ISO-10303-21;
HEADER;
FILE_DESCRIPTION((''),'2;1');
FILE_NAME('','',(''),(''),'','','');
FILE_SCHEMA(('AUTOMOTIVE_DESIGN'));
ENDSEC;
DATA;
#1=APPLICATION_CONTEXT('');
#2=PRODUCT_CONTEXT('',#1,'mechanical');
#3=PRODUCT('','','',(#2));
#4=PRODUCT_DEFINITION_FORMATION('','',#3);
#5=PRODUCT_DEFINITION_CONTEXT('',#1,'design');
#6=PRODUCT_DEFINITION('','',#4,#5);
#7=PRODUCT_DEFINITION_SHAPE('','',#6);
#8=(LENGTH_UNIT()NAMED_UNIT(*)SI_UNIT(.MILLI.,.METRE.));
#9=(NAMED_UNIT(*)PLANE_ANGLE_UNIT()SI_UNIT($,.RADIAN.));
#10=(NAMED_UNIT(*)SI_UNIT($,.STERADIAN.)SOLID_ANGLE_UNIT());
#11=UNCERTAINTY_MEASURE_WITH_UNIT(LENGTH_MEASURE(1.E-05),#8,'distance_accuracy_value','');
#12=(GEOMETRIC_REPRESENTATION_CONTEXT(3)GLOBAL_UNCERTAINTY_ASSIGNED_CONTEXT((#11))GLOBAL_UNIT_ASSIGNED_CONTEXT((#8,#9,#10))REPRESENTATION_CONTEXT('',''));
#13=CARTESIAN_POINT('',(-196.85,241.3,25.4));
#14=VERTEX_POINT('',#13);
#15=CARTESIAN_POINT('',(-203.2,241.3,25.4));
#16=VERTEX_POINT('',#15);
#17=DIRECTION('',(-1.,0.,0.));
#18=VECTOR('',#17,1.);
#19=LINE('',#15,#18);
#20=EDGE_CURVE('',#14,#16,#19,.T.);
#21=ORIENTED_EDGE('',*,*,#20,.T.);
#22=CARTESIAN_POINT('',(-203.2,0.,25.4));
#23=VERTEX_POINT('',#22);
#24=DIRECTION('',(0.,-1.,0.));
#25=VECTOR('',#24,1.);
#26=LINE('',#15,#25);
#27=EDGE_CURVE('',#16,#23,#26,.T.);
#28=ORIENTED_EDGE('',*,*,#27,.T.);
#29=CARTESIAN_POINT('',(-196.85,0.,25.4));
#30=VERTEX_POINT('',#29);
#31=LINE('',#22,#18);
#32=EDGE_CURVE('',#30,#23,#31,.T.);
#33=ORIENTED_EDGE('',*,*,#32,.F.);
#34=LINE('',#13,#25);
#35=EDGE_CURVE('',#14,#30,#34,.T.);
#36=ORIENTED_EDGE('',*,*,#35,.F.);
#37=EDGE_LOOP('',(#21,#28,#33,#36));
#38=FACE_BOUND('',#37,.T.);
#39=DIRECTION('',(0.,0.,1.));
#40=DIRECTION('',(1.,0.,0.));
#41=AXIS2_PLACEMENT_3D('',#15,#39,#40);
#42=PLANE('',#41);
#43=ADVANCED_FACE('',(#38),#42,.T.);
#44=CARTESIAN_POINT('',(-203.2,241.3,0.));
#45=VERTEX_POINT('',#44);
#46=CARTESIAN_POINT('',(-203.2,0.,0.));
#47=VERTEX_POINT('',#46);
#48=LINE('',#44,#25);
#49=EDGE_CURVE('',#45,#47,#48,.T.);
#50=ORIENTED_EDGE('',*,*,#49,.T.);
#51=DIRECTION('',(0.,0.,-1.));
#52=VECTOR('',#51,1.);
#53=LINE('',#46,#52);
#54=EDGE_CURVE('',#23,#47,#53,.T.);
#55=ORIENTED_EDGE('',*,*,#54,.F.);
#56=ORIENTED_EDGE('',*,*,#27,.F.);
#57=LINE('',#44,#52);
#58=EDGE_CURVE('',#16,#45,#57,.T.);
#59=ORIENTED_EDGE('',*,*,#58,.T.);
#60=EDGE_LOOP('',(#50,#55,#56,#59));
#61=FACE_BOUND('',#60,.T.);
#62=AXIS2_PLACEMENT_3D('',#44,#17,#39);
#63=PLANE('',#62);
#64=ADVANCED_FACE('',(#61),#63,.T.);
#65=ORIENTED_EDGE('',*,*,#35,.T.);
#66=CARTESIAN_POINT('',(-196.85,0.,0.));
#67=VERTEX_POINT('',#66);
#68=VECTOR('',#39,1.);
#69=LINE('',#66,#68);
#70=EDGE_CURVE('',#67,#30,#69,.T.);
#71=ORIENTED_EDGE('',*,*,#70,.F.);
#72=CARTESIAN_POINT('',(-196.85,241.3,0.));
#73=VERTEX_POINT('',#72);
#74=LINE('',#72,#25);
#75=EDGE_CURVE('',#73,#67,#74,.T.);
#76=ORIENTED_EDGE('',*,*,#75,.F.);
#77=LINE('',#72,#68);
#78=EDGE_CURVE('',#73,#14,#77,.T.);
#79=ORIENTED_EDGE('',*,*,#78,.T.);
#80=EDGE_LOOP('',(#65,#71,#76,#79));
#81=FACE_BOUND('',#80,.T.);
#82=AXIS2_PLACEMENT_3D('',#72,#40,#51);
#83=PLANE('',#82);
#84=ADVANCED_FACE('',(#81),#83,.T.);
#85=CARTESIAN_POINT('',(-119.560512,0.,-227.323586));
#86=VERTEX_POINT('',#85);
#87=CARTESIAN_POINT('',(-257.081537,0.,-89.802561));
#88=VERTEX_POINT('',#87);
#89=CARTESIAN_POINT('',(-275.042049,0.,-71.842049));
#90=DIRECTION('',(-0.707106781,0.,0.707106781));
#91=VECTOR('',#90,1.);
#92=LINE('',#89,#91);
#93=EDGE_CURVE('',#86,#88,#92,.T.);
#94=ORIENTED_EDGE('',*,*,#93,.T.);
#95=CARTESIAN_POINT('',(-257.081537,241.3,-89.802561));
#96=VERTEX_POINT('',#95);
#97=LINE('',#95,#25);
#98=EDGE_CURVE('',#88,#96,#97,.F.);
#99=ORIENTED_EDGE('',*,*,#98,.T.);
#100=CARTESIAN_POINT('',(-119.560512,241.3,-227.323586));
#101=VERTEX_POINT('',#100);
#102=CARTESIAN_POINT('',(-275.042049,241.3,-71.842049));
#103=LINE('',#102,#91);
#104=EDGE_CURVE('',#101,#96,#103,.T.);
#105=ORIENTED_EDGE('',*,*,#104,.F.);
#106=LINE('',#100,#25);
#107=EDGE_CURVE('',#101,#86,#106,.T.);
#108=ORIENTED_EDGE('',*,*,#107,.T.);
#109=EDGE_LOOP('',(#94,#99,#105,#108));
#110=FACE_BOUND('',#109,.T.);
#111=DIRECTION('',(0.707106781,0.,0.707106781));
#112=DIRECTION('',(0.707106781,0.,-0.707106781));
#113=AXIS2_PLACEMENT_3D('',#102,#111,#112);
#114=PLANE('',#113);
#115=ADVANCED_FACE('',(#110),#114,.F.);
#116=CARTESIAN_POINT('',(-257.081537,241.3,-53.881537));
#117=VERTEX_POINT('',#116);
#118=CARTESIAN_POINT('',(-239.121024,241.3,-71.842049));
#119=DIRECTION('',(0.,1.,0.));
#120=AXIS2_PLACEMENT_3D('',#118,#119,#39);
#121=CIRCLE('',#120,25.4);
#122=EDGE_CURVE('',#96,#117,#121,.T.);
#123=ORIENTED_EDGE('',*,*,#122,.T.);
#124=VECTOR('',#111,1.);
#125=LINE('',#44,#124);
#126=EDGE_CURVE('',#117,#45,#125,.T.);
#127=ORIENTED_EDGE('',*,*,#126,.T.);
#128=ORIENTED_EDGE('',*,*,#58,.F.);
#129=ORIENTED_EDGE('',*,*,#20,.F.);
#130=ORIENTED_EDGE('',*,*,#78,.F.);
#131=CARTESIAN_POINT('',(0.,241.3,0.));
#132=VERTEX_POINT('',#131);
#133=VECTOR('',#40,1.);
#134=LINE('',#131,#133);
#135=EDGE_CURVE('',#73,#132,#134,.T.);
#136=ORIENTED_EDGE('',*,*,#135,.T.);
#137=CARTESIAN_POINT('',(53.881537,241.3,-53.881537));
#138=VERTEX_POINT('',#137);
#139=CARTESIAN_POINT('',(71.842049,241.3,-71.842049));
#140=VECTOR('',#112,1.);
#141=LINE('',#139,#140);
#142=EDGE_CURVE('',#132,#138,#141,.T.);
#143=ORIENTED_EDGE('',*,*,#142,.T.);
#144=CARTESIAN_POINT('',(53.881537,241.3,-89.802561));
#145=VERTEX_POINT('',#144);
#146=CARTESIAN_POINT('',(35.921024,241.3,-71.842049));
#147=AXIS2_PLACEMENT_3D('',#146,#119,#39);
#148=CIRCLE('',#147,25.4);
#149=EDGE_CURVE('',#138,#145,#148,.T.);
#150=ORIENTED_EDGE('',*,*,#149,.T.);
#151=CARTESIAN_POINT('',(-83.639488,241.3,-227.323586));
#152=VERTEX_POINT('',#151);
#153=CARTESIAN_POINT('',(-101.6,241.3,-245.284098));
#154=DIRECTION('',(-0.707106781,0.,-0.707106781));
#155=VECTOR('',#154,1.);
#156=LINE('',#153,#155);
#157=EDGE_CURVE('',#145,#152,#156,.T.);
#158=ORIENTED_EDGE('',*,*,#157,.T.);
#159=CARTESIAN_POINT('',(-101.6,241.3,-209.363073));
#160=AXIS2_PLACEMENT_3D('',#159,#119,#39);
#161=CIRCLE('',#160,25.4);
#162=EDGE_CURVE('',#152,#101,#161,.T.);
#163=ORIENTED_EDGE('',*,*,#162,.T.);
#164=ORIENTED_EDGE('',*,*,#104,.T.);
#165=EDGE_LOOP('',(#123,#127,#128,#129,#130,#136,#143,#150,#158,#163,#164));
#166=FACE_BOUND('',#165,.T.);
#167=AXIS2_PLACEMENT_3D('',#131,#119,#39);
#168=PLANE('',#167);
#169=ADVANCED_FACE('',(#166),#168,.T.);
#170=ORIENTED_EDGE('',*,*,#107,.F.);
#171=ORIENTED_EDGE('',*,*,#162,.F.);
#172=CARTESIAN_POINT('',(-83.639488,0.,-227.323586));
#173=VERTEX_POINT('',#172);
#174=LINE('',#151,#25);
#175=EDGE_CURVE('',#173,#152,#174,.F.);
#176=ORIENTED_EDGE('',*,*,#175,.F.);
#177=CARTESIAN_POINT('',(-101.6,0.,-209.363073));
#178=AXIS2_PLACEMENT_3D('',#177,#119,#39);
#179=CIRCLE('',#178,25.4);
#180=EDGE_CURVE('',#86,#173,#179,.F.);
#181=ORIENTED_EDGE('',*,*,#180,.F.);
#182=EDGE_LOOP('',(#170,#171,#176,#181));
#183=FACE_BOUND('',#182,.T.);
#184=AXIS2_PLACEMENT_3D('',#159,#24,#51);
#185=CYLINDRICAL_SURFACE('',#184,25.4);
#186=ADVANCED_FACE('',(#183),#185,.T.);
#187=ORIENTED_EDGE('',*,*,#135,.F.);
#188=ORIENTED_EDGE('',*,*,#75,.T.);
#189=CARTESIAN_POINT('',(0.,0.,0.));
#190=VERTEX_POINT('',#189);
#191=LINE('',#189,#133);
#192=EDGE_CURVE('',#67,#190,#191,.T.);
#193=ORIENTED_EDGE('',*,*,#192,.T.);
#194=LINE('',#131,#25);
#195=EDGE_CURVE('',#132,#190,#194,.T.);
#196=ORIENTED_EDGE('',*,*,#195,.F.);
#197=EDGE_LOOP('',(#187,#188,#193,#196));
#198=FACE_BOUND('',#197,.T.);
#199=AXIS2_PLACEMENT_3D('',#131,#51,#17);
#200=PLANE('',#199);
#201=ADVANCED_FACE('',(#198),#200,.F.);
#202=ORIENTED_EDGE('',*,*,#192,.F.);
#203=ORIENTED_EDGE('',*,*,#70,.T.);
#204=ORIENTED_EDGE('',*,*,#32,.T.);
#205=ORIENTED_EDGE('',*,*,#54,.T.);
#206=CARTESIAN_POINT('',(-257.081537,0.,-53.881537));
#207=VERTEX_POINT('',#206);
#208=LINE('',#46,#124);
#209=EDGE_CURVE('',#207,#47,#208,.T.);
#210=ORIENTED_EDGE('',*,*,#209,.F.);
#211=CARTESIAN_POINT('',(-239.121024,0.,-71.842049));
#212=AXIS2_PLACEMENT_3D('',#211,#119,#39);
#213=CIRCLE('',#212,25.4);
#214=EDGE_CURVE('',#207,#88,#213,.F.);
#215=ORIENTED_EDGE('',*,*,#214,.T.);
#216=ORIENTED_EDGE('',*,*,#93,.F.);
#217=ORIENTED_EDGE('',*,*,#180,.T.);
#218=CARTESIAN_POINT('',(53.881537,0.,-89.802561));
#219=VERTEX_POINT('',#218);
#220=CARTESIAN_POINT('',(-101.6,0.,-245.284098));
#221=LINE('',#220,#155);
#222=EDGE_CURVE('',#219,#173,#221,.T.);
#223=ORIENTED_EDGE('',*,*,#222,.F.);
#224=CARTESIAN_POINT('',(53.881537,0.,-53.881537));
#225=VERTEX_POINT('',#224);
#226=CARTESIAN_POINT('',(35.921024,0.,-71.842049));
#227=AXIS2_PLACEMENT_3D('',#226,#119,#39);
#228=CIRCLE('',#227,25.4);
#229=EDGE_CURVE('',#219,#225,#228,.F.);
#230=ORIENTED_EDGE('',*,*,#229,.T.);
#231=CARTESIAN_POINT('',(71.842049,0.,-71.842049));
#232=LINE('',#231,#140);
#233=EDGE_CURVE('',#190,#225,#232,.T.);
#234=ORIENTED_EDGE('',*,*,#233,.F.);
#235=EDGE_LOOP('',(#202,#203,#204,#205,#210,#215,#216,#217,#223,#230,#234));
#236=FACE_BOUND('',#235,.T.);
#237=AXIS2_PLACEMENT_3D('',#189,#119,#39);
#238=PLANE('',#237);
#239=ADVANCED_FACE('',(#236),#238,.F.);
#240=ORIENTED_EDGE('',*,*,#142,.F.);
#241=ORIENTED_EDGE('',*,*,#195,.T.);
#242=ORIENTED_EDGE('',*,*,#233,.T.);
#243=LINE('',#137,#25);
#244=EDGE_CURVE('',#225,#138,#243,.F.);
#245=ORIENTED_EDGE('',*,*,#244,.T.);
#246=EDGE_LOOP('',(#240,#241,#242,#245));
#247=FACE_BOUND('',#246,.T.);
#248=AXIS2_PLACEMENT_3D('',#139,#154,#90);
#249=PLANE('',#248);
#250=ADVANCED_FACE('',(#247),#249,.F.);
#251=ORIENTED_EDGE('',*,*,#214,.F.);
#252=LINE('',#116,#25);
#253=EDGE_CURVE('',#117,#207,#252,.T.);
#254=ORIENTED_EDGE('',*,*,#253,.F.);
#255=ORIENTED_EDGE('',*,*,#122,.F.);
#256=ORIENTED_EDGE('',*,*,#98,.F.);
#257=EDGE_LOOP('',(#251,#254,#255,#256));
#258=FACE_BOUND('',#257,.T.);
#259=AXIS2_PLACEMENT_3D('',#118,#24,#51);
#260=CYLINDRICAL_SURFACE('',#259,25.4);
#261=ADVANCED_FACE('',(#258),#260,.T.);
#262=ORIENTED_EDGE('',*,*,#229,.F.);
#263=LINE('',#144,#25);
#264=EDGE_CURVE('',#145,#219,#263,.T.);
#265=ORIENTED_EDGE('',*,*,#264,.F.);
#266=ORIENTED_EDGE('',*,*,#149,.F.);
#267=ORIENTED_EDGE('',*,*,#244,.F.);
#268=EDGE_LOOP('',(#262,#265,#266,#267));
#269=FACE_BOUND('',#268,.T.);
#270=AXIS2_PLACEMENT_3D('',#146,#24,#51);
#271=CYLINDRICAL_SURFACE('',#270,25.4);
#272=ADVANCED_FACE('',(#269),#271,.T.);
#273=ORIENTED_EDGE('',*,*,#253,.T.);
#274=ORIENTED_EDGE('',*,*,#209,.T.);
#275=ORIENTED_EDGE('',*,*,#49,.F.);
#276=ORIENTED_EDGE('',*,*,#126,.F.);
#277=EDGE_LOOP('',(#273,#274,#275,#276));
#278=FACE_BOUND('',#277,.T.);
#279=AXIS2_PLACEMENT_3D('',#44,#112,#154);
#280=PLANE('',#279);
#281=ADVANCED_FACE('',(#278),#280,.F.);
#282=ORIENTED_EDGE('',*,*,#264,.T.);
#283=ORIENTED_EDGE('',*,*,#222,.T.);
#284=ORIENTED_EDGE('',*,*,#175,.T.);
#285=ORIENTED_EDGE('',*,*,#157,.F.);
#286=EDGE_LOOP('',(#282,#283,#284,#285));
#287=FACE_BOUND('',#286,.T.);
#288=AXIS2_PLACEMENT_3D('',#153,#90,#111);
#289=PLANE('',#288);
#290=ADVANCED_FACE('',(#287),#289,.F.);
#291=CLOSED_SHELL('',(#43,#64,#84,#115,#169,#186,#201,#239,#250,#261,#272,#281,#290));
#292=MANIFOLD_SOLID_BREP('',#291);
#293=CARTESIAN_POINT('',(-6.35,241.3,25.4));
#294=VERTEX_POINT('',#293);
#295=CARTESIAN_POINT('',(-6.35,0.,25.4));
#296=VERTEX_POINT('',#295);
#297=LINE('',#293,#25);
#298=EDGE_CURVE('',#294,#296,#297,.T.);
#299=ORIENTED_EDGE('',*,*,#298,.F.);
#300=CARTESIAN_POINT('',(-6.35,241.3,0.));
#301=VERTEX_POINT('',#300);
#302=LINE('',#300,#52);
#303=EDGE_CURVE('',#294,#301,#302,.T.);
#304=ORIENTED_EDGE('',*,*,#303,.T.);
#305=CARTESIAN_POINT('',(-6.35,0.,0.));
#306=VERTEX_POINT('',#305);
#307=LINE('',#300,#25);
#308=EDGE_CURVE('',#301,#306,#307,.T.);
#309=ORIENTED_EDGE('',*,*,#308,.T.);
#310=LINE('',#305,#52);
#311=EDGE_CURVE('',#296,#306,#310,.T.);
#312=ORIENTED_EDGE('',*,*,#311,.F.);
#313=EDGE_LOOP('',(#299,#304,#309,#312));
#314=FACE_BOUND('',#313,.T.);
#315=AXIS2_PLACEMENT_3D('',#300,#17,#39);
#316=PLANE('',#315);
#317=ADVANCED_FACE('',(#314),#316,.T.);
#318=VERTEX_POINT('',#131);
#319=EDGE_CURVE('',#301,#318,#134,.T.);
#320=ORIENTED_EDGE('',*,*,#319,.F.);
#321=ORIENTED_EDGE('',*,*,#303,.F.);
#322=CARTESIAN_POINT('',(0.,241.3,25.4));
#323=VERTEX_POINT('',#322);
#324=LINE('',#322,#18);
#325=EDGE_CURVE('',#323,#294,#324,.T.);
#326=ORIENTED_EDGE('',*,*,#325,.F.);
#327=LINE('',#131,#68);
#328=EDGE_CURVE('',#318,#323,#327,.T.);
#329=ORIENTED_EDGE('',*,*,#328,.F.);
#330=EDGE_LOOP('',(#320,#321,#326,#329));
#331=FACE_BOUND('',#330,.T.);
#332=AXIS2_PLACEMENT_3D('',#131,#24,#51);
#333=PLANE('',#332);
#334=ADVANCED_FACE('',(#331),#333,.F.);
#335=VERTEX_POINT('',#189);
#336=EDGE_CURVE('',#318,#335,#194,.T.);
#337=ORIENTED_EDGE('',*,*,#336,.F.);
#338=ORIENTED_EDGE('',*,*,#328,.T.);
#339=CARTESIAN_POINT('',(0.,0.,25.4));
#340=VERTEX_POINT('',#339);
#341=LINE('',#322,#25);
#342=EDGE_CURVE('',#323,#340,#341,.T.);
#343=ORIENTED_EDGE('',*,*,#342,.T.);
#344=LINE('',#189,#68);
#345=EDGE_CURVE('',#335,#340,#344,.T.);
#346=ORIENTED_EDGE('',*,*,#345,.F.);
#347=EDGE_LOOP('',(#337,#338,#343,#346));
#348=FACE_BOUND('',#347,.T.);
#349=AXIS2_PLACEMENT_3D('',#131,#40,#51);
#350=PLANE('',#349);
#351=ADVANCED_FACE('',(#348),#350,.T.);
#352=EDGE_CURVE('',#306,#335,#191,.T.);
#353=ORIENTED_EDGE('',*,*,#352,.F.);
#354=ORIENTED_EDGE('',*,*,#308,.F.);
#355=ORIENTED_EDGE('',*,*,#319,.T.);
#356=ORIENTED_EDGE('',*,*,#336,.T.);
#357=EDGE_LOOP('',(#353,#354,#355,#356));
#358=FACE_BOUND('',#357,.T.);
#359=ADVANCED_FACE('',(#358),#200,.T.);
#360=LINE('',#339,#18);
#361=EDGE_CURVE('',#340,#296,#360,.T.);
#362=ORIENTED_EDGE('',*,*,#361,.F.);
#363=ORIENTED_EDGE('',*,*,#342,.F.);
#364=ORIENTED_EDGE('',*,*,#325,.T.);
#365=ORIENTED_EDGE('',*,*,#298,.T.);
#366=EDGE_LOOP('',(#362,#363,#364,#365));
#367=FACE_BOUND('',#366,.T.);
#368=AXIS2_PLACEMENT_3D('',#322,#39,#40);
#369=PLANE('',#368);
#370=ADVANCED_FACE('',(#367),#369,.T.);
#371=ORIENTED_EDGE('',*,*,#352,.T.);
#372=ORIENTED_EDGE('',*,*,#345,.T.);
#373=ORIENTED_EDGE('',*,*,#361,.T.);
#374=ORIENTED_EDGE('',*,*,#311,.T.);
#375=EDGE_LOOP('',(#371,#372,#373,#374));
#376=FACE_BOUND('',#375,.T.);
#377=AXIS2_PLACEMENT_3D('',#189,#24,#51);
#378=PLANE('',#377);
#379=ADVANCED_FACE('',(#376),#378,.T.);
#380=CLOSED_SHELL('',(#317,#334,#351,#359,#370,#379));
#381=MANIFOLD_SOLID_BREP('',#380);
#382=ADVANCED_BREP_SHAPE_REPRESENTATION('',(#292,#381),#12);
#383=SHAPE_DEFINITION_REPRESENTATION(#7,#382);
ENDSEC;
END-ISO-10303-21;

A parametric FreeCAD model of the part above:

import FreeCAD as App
import Part
import Sketcher
from FreeCAD import Vector
Q = App.Units.Quantity


def edges_at(feature, points):
    """Names of the edges that pass closest to the given points."""
    edges = feature.Shape.Edges
    near = lambda p: min(range(len(edges)), key=lambda i: edges[i].distToShape(Part.Vertex(*p))[0])
    return sorted({f"Edge{near(p) + 1}" for p in points})

doc = App.newDocument("Part")
body = doc.addObject("PartDesign::Body", "Body")

# Sketch on XZ plane
sketch1 = body.newObject("Sketcher::SketchObject", "Sketch")
sketch1.AttachmentSupport = (doc.getObject("XZ_Plane"), [""])
sketch1.MapMode = "FlatFace"
sketch1.addGeometry([
    Part.LineSegment(Vector(-203, 25, 0), Vector(-203, 0, 0)),
    Part.LineSegment(Vector(-203, 0, 0), Vector(-197, 0, 0)),
    Part.LineSegment(Vector(-197, 0, 0), Vector(-197, 25, 0)),
    Part.LineSegment(Vector(-197, 25, 0), Vector(-203, 25, 0)),
], False)
sketch1.addConstraint([
    Sketcher.Constraint("Coincident", 0, 2, 1, 1),
    Sketcher.Constraint("Coincident", 1, 2, 2, 1),
    Sketcher.Constraint("Coincident", 2, 2, 3, 1),
    Sketcher.Constraint("Coincident", 3, 2, 0, 1),
    Sketcher.Constraint("Vertical", 0),
    Sketcher.Constraint("Horizontal", 1),
    Sketcher.Constraint("Vertical", 2),
    Sketcher.Constraint("Horizontal", 3),
    Sketcher.Constraint("PointOnObject", 0, 2, -1),
    Sketcher.Constraint("DistanceY", 0, 2, 0, 1, Q("1 in")),
    Sketcher.Constraint("DistanceX", 0, 2, -1, 1, Q("8 in")),
    Sketcher.Constraint("DistanceX", 1, 1, 1, 2, Q("0.25 in")),
])
pad1 = body.newObject("PartDesign::Pad", "Pad")
pad1.Profile = sketch1
pad1.Length = Q("9.5 in")
pad1.Reversed = True

# Sketch on XZ plane
sketch2 = body.newObject("Sketcher::SketchObject", "Sketch001")
sketch2.AttachmentSupport = (doc.getObject("XZ_Plane"), [""])
sketch2.MapMode = "FlatFace"
sketch2.addGeometry([
    Part.LineSegment(Vector(-203, 0, 0), Vector(0, 0, 0)),  # 0
    Part.LineSegment(Vector(0, 0, 0), Vector(72, -72, 0)),  # 1
    Part.LineSegment(Vector(72, -72, 0), Vector(-102, -245, 0)),  # 2
    Part.LineSegment(Vector(-102, -245, 0), Vector(-275, -72, 0)),  # 3
    Part.LineSegment(Vector(-275, -72, 0), Vector(-203, 0, 0)),  # 4
], False)
sketch2.addConstraint([
    Sketcher.Constraint("Coincident", 0, 2, 1, 1),
    Sketcher.Constraint("Coincident", 1, 2, 2, 1),
    Sketcher.Constraint("Coincident", 2, 2, 3, 1),
    Sketcher.Constraint("Coincident", 3, 2, 4, 1),
    Sketcher.Constraint("Coincident", 4, 2, 0, 1),
    Sketcher.Constraint("Horizontal", 0),
    Sketcher.Constraint("Coincident", 0, 2, -1, 1),
    Sketcher.Constraint("Perpendicular", 1, 2),
    Sketcher.Constraint("Perpendicular", 2, 3),
    Sketcher.Constraint("Perpendicular", 3, 4),
    Sketcher.Constraint("Horizontal", 1, 2, 3, 2),
    Sketcher.Constraint("Equal", 2, 3),
    Sketcher.Constraint("DistanceX", 0, 1, 0, 2, Q("8 in")),
    Sketcher.Constraint("Distance", 1, Q("4 in")),
])
pad2 = body.newObject("PartDesign::Pad", "Pad001")
pad2.Profile = sketch2
pad2.Length = Q("9.5 in")
pad2.Reversed = True
doc.recompute()

fillet = body.newObject("PartDesign::Fillet", "Fillet")
fillet.Base = (pad2, edges_at(pad2, [(-101.6, 120.65, -245.284)]))
fillet.Radius = Q("1 in")
doc.recompute()

fillet2 = body.newObject("PartDesign::Fillet", "Fillet001")
fillet2.Base = (fillet, edges_at(fillet, [(-275.042, 120.65, -71.842)]))
fillet2.Radius = Q("1 in")
doc.recompute()

fillet3 = body.newObject("PartDesign::Fillet", "Fillet002")
fillet3.Base = (fillet2, edges_at(fillet2, [(71.842, 120.65, -71.842)]))
fillet3.Radius = Q("1 in")
body2 = doc.addObject("PartDesign::Body", "Body001")

# Sketch on XZ plane
sketch3 = body2.newObject("Sketcher::SketchObject", "Sketch002")
sketch3.AttachmentSupport = (doc.getObject("XZ_Plane001"), [""])
sketch3.MapMode = "FlatFace"
sketch3.addGeometry([
    Part.LineSegment(Vector(-6, 25, 0), Vector(-6, 0, 0)),
    Part.LineSegment(Vector(-6, 0, 0), Vector(0, 0, 0)),
    Part.LineSegment(Vector(0, 0, 0), Vector(0, 25, 0)),
    Part.LineSegment(Vector(0, 25, 0), Vector(-6, 25, 0)),
], False)
sketch3.addConstraint([
    Sketcher.Constraint("Coincident", 0, 2, 1, 1),
    Sketcher.Constraint("Coincident", 1, 2, 2, 1),
    Sketcher.Constraint("Coincident", 2, 2, 3, 1),
    Sketcher.Constraint("Coincident", 3, 2, 0, 1),
    Sketcher.Constraint("Vertical", 0),
    Sketcher.Constraint("Horizontal", 1),
    Sketcher.Constraint("Vertical", 2),
    Sketcher.Constraint("Horizontal", 3),
    Sketcher.Constraint("Coincident", 1, 2, -1, 1),
    Sketcher.Constraint("DistanceY", 0, 2, 0, 1, Q("1 in")),
    Sketcher.Constraint("DistanceX", 1, 1, 1, 2, Q("0.25 in")),
])
pad3 = body2.newObject("PartDesign::Pad", "Pad002")
pad3.Profile = sketch3
pad3.Length = Q("9.5 in")
pad3.Reversed = True

doc.recompute()
